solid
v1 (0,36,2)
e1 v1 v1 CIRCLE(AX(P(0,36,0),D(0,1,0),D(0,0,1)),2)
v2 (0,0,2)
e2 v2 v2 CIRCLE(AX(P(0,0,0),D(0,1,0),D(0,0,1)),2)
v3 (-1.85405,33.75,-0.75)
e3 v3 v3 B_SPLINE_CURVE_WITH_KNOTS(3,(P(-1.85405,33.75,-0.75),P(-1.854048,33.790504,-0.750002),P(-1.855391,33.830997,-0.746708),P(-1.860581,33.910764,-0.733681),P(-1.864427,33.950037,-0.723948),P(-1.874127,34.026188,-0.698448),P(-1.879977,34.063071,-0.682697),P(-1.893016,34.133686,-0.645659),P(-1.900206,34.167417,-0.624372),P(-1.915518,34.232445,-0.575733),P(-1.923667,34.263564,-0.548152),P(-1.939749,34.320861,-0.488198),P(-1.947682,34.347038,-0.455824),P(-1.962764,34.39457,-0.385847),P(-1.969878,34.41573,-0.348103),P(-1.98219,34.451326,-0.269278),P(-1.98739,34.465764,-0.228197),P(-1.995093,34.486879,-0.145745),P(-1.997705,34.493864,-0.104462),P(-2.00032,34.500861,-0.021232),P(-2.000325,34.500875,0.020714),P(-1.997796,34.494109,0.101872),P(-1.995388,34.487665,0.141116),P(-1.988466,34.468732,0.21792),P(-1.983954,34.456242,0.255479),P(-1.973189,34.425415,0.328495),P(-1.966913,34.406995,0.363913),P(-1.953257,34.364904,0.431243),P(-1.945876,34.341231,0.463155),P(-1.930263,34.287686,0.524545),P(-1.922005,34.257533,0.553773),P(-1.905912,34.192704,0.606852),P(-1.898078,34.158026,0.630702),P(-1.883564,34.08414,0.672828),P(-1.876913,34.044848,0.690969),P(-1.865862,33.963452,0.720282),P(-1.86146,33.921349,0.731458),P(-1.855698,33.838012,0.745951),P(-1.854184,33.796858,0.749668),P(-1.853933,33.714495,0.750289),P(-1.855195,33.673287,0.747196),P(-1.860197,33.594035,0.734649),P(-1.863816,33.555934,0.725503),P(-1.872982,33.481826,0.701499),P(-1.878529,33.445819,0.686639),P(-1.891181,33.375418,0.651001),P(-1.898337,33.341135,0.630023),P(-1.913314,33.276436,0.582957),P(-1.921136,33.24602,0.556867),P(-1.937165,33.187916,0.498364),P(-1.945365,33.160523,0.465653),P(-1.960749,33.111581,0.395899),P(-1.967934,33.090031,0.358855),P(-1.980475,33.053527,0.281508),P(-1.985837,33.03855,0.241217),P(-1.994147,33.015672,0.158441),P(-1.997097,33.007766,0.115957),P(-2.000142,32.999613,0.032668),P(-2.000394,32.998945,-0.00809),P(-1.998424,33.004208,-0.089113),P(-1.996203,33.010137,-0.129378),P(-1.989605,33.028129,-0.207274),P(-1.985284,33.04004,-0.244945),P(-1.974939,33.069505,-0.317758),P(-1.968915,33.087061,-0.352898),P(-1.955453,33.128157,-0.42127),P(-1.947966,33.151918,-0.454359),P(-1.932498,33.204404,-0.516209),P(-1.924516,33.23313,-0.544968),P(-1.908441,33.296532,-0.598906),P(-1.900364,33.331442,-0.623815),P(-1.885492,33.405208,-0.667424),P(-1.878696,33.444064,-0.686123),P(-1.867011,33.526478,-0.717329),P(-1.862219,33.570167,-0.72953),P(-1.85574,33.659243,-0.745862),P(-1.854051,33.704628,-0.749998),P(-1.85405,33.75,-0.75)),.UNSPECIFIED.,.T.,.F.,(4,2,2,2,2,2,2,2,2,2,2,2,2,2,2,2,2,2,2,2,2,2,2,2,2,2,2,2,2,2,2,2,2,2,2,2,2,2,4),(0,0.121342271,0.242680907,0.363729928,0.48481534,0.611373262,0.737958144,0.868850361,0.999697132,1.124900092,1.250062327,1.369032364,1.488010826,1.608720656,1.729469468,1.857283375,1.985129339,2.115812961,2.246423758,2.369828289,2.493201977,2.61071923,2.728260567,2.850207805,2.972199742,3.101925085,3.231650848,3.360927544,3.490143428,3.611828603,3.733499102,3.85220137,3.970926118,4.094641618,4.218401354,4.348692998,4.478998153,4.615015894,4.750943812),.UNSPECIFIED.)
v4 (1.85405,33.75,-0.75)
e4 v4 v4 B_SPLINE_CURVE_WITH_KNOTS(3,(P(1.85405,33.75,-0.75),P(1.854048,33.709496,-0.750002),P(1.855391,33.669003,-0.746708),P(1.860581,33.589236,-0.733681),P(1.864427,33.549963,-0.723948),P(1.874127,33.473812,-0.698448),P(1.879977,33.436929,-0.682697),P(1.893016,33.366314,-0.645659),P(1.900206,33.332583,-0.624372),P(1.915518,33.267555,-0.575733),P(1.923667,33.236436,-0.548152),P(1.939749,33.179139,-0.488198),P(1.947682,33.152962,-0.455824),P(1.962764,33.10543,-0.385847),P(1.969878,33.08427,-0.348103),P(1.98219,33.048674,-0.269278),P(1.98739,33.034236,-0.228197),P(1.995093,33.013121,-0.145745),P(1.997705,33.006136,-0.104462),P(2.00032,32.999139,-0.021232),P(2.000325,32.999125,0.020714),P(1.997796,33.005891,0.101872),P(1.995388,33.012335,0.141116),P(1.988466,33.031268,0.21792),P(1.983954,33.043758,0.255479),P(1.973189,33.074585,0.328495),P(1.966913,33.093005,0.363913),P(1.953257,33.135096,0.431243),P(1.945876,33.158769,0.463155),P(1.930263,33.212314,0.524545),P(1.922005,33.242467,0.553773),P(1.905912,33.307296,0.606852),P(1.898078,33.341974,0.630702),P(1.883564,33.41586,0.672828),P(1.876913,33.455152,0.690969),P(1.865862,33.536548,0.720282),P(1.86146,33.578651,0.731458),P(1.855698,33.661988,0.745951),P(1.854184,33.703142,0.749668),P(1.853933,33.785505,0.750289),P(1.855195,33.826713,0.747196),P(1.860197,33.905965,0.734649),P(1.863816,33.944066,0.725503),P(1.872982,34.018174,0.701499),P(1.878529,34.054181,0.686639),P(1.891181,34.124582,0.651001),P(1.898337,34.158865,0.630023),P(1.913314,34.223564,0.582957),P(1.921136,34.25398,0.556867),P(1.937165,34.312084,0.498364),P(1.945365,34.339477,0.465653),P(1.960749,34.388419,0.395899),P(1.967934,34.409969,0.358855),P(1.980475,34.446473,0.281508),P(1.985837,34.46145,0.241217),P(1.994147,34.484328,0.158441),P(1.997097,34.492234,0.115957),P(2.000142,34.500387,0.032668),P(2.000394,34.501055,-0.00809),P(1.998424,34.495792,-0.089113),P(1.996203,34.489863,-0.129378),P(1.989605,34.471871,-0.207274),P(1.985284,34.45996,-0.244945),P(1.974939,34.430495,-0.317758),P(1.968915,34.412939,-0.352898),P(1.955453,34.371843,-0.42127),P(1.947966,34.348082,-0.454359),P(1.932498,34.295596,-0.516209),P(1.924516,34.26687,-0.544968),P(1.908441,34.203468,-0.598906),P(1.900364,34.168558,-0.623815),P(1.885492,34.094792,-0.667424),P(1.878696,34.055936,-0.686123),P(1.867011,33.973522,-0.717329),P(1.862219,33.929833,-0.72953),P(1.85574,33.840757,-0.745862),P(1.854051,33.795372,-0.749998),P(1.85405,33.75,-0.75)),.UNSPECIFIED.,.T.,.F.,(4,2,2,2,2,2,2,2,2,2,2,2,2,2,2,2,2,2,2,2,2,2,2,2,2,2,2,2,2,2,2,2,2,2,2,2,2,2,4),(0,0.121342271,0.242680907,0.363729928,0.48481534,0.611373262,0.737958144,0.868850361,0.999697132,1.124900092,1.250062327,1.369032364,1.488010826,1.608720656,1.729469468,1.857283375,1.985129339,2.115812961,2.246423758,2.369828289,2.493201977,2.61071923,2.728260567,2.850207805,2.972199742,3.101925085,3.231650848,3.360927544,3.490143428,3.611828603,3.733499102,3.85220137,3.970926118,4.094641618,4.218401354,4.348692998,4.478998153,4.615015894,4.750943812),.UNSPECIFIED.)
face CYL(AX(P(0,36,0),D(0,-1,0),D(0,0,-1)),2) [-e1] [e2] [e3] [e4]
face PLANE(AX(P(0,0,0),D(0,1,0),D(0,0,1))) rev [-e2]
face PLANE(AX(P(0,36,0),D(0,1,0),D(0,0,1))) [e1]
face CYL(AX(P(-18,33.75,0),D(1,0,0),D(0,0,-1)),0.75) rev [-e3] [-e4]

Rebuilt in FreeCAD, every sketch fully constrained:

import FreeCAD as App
import Part
import Sketcher

V = App.Vector
Q = App.Units.Quantity

doc = App.newDocument("Part")
body = doc.addObject("PartDesign::Body", "Body")

# Sketch on XZ plane
sketch1 = doc.addObject("Sketcher::SketchObject", "Sketch")
body.addObject(sketch1)
sketch1.AttachmentSupport = (doc.XZ_Plane, [""])
sketch1.MapMode = "FlatFace"
sketch1.addGeometry(Part.Circle(V(0, 0, 0), V(0, 0, 1), 2), False)
sketch1.addConstraint([
    Sketcher.Constraint("Coincident", 0, 3, -1, 1),
    Sketcher.Constraint("Diameter", 0, Q("4 mm")),
])
pad1 = doc.addObject("PartDesign::Pad", "Pad")
body.addObject(pad1)
pad1.Profile = sketch1
pad1.Length = 36
pad1.Reversed = True

# Sketch on YZ plane
sketch2 = doc.addObject("Sketcher::SketchObject", "Sketch001")
body.addObject(sketch2)
sketch2.AttachmentSupport = (doc.YZ_Plane, [""])
sketch2.MapMode = "FlatFace"
sketch2.addGeometry(Part.Circle(V(33.75, 0, 0), V(0, 0, 1), 0.75), False)
sketch2.addConstraint([
    Sketcher.Constraint("PointOnObject", 0, 3, -1),
    Sketcher.Constraint("Diameter", 0, Q("1.5 mm")),
    Sketcher.Constraint("DistanceX", -1, 1, 0, 3, Q("33.75 mm")),
])
pocket1 = doc.addObject("PartDesign::Pocket", "Pocket")
body.addObject(pocket1)
pocket1.Profile = sketch2
pocket1.Length = 36
pocket1.Midplane = True

doc.recompute()
